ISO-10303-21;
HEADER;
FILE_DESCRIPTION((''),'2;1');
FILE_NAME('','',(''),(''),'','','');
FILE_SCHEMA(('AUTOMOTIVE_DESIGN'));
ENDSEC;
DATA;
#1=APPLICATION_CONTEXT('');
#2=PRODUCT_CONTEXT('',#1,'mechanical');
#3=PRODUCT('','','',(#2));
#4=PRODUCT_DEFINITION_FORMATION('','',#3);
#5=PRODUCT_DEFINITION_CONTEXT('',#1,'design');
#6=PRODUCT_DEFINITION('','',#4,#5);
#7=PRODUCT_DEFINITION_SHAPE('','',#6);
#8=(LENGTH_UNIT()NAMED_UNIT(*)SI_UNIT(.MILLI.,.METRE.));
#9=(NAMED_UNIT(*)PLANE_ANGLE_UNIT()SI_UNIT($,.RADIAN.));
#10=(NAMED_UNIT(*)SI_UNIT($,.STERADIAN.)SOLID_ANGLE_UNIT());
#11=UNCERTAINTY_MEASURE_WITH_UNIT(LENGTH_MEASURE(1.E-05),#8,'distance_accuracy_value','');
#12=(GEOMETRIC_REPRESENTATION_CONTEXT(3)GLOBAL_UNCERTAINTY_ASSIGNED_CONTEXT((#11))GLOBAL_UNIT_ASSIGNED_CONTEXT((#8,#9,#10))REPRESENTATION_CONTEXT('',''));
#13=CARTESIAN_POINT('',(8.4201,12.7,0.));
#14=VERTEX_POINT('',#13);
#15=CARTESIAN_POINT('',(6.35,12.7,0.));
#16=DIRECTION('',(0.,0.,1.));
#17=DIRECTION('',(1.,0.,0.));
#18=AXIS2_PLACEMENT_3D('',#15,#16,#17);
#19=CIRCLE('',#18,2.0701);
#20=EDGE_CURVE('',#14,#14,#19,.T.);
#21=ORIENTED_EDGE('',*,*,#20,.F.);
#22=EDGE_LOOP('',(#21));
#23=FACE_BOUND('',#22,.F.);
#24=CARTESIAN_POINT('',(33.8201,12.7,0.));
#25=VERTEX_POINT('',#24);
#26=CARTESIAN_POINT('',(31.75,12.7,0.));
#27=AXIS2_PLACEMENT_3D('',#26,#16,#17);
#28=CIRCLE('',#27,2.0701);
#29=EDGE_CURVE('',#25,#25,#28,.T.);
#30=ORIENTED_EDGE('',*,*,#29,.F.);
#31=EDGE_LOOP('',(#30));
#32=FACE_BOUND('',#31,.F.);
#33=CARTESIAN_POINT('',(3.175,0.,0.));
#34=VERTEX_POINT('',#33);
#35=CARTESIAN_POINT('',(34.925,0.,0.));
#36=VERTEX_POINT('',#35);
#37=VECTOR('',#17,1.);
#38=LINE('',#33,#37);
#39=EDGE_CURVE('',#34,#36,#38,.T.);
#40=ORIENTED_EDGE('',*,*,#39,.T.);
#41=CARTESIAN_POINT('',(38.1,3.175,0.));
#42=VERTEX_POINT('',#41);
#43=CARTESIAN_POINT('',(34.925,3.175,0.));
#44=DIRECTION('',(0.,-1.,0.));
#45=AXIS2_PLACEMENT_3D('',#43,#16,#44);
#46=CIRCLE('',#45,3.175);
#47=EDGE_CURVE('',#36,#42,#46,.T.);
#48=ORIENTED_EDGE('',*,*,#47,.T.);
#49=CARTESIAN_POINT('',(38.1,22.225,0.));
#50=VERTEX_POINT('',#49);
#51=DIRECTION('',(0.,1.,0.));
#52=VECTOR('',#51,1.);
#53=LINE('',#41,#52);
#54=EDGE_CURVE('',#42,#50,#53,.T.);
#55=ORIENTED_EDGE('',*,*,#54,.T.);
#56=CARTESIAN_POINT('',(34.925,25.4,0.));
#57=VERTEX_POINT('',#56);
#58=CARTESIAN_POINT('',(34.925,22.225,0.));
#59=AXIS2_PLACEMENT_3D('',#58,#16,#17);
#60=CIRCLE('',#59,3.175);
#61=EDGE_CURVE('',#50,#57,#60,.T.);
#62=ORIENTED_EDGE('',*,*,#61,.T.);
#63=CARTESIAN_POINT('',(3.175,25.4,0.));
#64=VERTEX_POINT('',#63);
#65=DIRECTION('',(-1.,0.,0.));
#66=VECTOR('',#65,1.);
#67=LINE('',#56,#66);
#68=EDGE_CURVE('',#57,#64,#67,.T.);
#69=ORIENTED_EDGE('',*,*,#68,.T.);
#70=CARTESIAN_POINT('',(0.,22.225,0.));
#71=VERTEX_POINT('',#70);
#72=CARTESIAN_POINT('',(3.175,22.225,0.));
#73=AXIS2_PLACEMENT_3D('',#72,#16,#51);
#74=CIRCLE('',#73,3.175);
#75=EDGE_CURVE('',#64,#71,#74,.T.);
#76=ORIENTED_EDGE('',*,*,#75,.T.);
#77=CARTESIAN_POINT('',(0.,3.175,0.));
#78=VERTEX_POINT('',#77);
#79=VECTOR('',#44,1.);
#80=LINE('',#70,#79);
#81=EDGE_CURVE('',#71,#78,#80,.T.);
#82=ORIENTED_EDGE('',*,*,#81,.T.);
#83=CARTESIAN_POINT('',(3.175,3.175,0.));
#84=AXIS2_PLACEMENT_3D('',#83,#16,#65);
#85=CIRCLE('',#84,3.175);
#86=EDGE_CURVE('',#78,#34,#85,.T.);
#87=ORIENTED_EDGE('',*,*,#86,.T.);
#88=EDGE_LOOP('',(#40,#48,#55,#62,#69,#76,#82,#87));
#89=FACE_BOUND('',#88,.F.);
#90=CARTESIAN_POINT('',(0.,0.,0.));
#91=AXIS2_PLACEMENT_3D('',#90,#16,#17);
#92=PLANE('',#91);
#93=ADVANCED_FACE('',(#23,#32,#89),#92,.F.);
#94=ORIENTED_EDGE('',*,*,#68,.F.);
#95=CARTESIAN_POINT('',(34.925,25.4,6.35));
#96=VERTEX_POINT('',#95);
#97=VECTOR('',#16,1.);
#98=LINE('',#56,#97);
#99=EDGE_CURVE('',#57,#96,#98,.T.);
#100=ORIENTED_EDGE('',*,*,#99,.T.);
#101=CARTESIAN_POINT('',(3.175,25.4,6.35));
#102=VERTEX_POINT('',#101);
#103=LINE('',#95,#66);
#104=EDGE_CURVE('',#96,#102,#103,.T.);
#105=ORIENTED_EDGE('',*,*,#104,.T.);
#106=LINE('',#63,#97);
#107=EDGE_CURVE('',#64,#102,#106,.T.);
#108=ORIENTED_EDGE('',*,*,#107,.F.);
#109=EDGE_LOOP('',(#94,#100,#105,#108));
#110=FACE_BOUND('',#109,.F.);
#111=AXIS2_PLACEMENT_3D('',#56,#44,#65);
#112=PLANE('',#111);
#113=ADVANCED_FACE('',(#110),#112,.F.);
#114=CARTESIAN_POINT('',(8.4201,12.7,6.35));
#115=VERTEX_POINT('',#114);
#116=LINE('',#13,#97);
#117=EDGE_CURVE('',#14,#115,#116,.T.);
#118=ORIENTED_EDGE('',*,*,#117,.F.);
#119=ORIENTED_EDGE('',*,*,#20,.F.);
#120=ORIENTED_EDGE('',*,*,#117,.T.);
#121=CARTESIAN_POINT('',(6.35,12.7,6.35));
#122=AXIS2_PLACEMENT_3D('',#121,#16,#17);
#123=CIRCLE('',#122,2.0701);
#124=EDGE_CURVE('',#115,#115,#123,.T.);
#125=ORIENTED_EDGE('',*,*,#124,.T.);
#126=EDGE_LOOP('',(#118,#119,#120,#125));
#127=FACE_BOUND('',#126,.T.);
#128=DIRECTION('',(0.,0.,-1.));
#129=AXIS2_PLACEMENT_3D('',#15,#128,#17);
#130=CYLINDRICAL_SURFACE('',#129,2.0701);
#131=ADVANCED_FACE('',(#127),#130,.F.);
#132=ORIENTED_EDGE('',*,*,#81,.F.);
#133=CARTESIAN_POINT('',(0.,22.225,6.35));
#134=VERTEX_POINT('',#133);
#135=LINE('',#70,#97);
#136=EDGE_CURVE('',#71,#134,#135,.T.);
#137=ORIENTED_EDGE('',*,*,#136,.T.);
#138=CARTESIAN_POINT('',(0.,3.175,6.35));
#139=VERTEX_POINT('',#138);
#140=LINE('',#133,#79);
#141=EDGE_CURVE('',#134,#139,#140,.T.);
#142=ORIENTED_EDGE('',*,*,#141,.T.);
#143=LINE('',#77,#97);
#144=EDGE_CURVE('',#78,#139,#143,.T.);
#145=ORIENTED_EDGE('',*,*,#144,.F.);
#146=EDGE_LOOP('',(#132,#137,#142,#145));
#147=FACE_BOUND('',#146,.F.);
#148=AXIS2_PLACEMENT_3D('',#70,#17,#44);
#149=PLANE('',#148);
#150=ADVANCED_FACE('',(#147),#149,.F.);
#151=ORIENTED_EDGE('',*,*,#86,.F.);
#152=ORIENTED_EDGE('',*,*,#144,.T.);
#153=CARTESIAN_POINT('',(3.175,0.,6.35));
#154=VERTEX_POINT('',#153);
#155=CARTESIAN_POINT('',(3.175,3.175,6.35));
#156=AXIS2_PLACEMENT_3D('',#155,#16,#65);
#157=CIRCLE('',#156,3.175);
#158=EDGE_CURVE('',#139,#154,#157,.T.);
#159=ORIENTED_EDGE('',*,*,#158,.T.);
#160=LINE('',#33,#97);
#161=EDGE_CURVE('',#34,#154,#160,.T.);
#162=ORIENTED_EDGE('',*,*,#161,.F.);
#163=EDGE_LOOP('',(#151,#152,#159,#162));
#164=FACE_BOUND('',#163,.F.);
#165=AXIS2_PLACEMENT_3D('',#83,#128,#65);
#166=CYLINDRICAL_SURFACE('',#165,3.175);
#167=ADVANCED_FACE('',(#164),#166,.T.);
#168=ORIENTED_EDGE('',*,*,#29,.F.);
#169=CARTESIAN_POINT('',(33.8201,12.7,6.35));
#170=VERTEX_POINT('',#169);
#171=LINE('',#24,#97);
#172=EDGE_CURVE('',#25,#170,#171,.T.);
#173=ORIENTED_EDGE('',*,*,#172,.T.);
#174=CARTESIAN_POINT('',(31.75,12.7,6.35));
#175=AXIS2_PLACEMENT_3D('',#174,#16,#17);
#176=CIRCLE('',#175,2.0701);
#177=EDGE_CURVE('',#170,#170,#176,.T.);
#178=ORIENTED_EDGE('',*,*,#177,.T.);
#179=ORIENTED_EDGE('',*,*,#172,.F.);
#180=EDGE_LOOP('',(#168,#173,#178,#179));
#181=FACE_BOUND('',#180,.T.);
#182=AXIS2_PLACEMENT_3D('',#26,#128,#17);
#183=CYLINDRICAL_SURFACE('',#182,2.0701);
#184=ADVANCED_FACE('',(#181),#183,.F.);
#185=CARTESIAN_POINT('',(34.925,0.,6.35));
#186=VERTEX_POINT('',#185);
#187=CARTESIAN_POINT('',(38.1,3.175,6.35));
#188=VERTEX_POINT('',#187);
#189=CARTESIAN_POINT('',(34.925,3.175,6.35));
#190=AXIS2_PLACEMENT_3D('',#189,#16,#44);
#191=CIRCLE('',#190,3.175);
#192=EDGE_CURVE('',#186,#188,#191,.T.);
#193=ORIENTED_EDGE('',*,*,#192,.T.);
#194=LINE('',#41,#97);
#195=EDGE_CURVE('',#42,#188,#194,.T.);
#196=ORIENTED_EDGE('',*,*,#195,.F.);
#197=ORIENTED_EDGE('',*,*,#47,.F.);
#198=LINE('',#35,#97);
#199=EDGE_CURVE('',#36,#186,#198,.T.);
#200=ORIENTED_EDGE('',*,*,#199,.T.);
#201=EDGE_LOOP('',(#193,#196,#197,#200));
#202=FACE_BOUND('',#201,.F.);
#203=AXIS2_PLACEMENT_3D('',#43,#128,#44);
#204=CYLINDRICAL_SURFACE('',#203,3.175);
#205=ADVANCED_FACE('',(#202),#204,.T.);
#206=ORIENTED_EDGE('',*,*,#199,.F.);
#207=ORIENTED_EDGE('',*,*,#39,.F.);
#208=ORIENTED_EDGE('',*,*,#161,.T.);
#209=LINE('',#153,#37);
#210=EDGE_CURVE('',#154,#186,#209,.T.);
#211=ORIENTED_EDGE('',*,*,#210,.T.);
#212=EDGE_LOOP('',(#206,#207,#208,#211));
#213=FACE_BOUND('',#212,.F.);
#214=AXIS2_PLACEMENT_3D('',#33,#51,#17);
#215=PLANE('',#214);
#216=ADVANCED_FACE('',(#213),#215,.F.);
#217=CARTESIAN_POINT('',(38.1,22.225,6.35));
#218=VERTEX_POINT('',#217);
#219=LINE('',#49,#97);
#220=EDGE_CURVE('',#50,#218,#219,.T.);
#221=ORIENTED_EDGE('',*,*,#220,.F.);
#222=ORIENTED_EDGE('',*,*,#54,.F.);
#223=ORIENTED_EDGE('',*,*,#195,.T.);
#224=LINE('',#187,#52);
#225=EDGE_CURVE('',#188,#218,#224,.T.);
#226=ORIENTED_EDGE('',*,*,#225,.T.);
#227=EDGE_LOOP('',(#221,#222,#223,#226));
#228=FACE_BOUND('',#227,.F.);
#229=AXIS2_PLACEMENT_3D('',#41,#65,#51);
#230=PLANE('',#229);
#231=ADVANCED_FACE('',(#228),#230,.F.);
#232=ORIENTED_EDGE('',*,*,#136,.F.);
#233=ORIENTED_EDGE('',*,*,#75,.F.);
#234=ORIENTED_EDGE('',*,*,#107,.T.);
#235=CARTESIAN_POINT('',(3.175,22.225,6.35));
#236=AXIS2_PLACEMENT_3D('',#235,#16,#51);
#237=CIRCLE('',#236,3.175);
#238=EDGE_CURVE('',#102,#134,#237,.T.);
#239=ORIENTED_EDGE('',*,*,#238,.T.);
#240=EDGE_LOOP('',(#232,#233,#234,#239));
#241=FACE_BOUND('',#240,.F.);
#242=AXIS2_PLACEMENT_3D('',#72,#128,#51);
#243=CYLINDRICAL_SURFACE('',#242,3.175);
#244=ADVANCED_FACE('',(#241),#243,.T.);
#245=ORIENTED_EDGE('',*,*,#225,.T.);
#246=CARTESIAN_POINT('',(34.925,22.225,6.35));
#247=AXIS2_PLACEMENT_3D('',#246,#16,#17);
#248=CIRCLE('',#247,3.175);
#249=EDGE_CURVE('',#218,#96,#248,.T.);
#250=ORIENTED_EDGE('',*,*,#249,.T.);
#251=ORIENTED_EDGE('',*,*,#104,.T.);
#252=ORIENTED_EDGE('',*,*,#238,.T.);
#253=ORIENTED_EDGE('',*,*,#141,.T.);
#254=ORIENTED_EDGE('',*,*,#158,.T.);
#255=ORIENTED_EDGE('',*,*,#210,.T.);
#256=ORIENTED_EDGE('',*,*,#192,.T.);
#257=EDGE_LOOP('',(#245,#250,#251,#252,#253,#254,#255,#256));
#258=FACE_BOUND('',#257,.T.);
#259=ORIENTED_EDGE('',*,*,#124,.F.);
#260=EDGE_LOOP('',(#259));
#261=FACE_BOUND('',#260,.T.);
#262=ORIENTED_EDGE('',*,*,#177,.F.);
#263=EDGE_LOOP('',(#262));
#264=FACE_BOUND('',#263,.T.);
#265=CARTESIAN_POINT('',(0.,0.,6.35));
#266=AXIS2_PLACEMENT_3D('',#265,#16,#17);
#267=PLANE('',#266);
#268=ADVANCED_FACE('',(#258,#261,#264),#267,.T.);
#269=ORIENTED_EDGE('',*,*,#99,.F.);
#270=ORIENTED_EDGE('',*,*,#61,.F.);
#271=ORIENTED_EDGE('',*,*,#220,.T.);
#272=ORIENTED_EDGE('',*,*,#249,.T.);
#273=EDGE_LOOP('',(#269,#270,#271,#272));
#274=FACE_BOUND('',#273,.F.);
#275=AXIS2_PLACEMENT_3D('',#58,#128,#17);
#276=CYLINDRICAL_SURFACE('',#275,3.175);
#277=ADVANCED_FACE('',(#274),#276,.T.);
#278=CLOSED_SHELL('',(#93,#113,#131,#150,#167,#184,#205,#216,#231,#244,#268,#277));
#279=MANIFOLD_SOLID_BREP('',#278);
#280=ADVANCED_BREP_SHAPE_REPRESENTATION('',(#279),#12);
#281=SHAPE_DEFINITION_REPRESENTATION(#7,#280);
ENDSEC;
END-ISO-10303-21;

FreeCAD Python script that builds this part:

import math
import FreeCAD as App
import Part
import Sketcher
from FreeCAD import Vector
Q = App.Units.Quantity

doc = App.newDocument("Part")
params = doc.addObject("Spreadsheet::Sheet", "Params")
for row, (alias, value) in enumerate([
    ("sketch1_diameter", "0.163 in"),
    ("sketch1_radius", "0.125 in"),
    ("pad1_length", "0.25 in"),
], start=1):
    params.set(f"A{row}", alias)
    params.set(f"B{row}", "=" + value)
    params.setAlias(f"B{row}", alias)

body = doc.addObject("PartDesign::Body", "Body")

sketch1 = body.newObject("Sketcher::SketchObject", "Sketch")
sketch1.AttachmentSupport = (doc.getObject("XY_Plane"), [""])
sketch1.MapMode = "FlatFace"
sketch1.addGeometry([
    Part.ArcOfCircle(Part.Circle(Vector(3.2, 3.2, 0), Vector(0, 0, 1), 3.2), math.radians(180), math.radians(270)),
    Part.LineSegment(Vector(3.2, 0, 0), Vector(34.9, 0, 0)),
    Part.ArcOfCircle(Part.Circle(Vector(34.9, 3.2, 0), Vector(0, 0, 1), 3.2), math.radians(-90), math.radians(0)),
    Part.LineSegment(Vector(38.1, 3.2, 0), Vector(38.1, 22.2, 0)),
    Part.ArcOfCircle(Part.Circle(Vector(34.9, 22.2, 0), Vector(0, 0, 1), 3.2), math.radians(0), math.radians(90)),
    Part.LineSegment(Vector(34.9, 25.4, 0), Vector(3.2, 25.4, 0)),
    Part.ArcOfCircle(Part.Circle(Vector(3.2, 22.2, 0), Vector(0, 0, 1), 3.2), math.radians(90), math.radians(180)),
    Part.LineSegment(Vector(0, 22.2, 0), Vector(0, 3.2, 0)),
    Part.Circle(Vector(6.3, 12.7, 0), Vector(0, 0, 1), 2.1),
    Part.Circle(Vector(31.8, 12.7, 0), Vector(0, 0, 1), 2.1),
], False)
sketch1.addConstraint([
    Sketcher.Constraint("Tangent", 0, 2, 1, 1),
    Sketcher.Constraint("Tangent", 1, 2, 2, 1),
    Sketcher.Constraint("Tangent", 2, 2, 3, 1),
    Sketcher.Constraint("Tangent", 3, 2, 4, 1),
    Sketcher.Constraint("Tangent", 4, 2, 5, 1),
    Sketcher.Constraint("Tangent", 5, 2, 6, 1),
    Sketcher.Constraint("Tangent", 6, 2, 7, 1),
    Sketcher.Constraint("Tangent", 7, 2, 0, 1),
    Sketcher.Constraint("Horizontal", 1),
    Sketcher.Constraint("Vertical", 3),
    Sketcher.Constraint("Horizontal", 5),
    Sketcher.Constraint("Vertical", 7),
    Sketcher.Constraint("Equal", 0, 2),
    Sketcher.Constraint("Equal", 2, 4),
    Sketcher.Constraint("Equal", 4, 6),
    Sketcher.Constraint("Equal", 8, 9),
    Sketcher.Constraint("PointOnObject", 0, 2, -1),
    Sketcher.Constraint("PointOnObject", 6, 2, -2),
    Sketcher.Constraint("Horizontal", 8, 3, 9, 3),
    Sketcher.Constraint("Diameter", 8, Q("0.163 in")),
    Sketcher.Constraint("DistanceY", -1, 1, 4, 2, Q("1 in")),
    Sketcher.Constraint("Radius", 0, Q("0.125 in")),
    Sketcher.Constraint("DistanceX", 8, 3, 9, 3, Q("1 in")),
    Sketcher.Constraint("DistanceY", -1, 1, 8, 3, Q("0.5 in")),
    Sketcher.Constraint("DistanceX", -1, 1, 2, 2, Q("1.5 in")),
    Sketcher.Constraint("DistanceX", -1, 1, 8, 3, Q("0.25 in")),
])
sketch1.setExpression("Constraints[19]", "Params.sketch1_diameter")
sketch1.setExpression("Constraints[21]", "Params.sketch1_radius")
pad1 = body.newObject("PartDesign::Pad", "Pad")
pad1.Profile = sketch1
pad1.setExpression("Length", "Params.pad1_length")

doc.recompute()
